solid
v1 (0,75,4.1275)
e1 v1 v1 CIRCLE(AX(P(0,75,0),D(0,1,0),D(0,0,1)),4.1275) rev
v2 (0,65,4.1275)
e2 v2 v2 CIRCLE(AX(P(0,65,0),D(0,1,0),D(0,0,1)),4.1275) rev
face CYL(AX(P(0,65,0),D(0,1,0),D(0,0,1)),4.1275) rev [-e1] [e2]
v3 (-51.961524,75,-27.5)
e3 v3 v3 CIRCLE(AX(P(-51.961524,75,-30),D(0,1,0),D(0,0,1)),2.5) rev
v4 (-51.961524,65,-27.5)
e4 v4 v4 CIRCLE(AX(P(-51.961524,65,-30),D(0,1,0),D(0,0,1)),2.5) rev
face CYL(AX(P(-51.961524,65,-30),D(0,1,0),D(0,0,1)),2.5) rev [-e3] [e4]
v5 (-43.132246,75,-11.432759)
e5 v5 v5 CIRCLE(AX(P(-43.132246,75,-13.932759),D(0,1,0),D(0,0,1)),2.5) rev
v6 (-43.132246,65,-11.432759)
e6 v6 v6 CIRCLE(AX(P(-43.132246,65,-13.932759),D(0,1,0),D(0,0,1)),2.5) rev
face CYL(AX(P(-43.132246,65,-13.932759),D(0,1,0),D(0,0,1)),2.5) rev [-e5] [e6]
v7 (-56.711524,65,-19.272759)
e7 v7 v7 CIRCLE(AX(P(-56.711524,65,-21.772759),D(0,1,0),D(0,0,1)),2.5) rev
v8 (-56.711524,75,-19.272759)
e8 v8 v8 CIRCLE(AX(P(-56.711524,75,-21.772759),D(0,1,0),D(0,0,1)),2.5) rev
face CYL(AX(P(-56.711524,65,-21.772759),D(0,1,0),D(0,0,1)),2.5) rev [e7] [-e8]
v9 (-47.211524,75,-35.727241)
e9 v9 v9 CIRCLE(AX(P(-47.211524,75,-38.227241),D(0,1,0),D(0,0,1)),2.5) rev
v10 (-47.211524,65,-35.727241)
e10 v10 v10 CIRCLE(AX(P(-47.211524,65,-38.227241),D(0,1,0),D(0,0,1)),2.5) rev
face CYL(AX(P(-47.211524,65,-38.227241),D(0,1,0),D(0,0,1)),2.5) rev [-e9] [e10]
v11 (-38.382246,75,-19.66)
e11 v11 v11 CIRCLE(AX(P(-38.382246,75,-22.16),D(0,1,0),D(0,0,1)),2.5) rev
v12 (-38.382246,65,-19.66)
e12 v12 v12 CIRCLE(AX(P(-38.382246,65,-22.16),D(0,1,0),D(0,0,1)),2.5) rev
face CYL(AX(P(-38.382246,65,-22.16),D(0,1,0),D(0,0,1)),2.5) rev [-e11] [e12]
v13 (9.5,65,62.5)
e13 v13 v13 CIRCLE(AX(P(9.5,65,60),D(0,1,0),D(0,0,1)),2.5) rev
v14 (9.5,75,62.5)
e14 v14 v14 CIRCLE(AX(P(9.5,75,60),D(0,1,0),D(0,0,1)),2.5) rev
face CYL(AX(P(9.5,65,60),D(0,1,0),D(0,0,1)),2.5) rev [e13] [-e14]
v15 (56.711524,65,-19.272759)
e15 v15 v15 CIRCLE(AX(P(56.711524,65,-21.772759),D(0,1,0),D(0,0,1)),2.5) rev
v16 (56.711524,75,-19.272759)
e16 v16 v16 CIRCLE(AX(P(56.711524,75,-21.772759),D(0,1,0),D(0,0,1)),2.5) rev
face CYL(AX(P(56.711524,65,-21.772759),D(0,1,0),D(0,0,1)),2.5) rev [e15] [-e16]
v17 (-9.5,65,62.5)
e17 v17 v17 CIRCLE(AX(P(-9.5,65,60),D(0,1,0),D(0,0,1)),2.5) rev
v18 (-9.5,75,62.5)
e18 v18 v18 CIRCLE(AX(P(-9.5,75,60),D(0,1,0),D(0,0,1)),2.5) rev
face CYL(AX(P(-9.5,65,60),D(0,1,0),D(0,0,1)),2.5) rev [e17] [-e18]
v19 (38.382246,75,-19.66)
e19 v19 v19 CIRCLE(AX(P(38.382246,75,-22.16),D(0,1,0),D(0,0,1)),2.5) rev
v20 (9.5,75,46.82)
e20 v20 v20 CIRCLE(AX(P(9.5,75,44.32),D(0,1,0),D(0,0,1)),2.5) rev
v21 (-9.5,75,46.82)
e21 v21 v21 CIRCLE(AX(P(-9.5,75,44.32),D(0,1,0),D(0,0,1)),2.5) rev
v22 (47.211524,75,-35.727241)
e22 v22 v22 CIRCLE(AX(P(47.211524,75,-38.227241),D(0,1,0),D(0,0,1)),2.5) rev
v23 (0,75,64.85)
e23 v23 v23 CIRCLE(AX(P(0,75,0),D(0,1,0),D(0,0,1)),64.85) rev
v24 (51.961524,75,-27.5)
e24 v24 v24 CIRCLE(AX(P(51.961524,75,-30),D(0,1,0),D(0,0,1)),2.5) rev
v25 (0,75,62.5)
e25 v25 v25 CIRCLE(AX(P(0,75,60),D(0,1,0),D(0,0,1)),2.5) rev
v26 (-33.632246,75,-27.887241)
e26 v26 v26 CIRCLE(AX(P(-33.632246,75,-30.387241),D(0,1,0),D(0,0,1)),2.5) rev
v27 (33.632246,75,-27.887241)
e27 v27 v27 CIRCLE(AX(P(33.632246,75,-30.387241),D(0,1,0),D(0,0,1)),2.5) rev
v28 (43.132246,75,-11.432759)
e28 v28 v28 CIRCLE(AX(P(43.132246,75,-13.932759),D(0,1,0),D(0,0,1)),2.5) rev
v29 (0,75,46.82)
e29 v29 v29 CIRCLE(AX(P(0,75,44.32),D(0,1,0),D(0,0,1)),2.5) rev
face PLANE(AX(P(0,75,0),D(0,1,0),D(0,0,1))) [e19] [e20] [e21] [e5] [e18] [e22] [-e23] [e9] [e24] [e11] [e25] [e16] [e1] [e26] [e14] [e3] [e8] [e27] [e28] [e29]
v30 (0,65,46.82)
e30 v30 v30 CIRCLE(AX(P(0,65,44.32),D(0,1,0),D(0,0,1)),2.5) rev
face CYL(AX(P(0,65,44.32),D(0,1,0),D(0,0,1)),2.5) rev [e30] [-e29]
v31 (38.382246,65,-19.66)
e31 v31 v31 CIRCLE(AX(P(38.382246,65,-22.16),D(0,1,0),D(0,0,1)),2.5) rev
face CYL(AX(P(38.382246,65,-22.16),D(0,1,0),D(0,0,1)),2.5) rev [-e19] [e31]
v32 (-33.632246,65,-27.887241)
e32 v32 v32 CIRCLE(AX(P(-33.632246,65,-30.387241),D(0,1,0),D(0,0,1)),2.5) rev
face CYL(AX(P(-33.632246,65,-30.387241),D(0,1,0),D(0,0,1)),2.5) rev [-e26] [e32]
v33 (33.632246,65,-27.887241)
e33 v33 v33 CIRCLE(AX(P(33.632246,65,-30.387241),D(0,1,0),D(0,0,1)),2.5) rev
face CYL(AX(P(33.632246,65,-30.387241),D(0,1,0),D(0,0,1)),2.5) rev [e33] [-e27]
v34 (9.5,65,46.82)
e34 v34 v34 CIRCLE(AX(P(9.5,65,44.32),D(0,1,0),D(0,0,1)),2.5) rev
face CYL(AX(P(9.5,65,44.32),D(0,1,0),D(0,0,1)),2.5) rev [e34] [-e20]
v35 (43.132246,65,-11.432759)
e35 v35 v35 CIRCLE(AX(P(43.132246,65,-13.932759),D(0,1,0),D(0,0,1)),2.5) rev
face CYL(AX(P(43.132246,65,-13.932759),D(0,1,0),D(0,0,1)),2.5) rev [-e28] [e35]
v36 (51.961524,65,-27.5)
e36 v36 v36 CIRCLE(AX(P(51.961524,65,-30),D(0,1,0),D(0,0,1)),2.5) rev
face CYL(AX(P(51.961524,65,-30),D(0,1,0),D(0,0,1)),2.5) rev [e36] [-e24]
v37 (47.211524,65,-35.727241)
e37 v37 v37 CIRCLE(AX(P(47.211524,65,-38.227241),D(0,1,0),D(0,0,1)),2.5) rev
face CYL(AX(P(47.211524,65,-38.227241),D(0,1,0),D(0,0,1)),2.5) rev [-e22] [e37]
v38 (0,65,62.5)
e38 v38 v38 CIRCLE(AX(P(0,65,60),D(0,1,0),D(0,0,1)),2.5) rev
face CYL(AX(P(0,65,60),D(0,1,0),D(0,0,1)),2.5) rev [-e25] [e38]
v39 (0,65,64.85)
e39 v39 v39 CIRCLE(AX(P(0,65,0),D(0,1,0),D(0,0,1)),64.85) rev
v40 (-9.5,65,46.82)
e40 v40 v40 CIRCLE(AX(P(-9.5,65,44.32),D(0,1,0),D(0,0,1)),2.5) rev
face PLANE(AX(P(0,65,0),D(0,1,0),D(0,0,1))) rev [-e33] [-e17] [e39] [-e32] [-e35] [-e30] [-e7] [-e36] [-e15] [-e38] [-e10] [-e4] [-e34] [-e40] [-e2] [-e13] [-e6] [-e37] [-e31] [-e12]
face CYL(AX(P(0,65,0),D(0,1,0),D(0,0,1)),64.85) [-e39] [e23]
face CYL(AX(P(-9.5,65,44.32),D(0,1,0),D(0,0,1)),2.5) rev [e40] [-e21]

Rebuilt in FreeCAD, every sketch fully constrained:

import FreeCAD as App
import Part
import Sketcher
from FreeCAD import Vector
Q = App.Units.Quantity

doc = App.newDocument("Part")
params = doc.addObject("Spreadsheet::Sheet", "Params")
for row, (alias, value) in enumerate([
    ("sketch1_diameter", "5 mm"),
    ("sketch1_diameter2", "129.7 mm"),
    ("pad1_length", "10 mm"),
], start=1):
    params.set(f"A{row}", alias)
    params.set(f"B{row}", "=" + value)
    params.setAlias(f"B{row}", alias)

body = doc.addObject("PartDesign::Body", "Body")

# Sketch on XZ plane
sketch1 = body.newObject("Sketcher::SketchObject", "Sketch")
sketch1.AttachmentSupport = (doc.getObject("XZ_Plane"), [""])
sketch1.MapMode = "FlatFace"
sketch1.AttachmentOffset = App.Placement(Vector(0, 0, -75), App.Rotation())
sketch1.addGeometry(Part.Circle(Vector(0, 0, 0), Vector(0, 0, 1), 64.85), False)
sketch1.addGeometry(Part.Circle(Vector(51.961524, -30, 0), Vector(0, 0, 1), 2.5), False)
sketch1.addGeometry(Part.Circle(Vector(47.211524, -38.227241, 0), Vector(0, 0, 1), 2.5), False)
sketch1.addGeometry(Part.Circle(Vector(56.711524, -21.772759, 0), Vector(0, 0, 1), 2.5), False)
sketch1.addGeometry(Part.Circle(Vector(33.632246, -30.387241, 0), Vector(0, 0, 1), 2.5), False)
sketch1.addGeometry(Part.Circle(Vector(38.382246, -22.16, 0), Vector(0, 0, 1), 2.5), False)
sketch1.addGeometry(Part.Circle(Vector(43.132246, -13.932759, 0), Vector(0, 0, 1), 2.5), False)
sketch1.addGeometry(Part.Circle(Vector(9.5, 44.32, 0), Vector(0, 0, 1), 2.5), False)
sketch1.addGeometry(Part.Circle(Vector(9.5, 60, 0), Vector(0, 0, 1), 2.5), False)
sketch1.addGeometry(Part.Circle(Vector(0, 0, 0), Vector(0, 0, 1), 4.1275), False)
sketch1.addGeometry(Part.Circle(Vector(-33.632246, -30.387241, 0), Vector(0, 0, 1), 2.5), False)
sketch1.addGeometry(Part.Circle(Vector(-38.382246, -22.16, 0), Vector(0, 0, 1), 2.5), False)
sketch1.addGeometry(Part.Circle(Vector(-47.211524, -38.227241, 0), Vector(0, 0, 1), 2.5), False)
sketch1.addGeometry(Part.Circle(Vector(-51.961524, -30, 0), Vector(0, 0, 1), 2.5), False)
sketch1.addGeometry(Part.Circle(Vector(-56.711524, -21.772759, 0), Vector(0, 0, 1), 2.5), False)
sketch1.addGeometry(Part.Circle(Vector(-43.132246, -13.932759, 0), Vector(0, 0, 1), 2.5), False)
sketch1.addGeometry(Part.Circle(Vector(0, 44.32, 0), Vector(0, 0, 1), 2.5), False)
sketch1.addGeometry(Part.Circle(Vector(-9.5, 44.32, 0), Vector(0, 0, 1), 2.5), False)
sketch1.addGeometry(Part.Circle(Vector(0, 60, 0), Vector(0, 0, 1), 2.5), False)
sketch1.addGeometry(Part.Circle(Vector(-9.5, 60, 0), Vector(0, 0, 1), 2.5), False)
sketch1.addConstraint(Sketcher.Constraint("Coincident", 0, 3, -1, 1))
sketch1.addConstraint(Sketcher.Constraint("Coincident", 9, 3, -1, 1))
sketch1.addConstraint(Sketcher.Constraint("Equal", 1, 2))
sketch1.addConstraint(Sketcher.Constraint("Equal", 2, 3))
sketch1.addConstraint(Sketcher.Constraint("Equal", 3, 4))
sketch1.addConstraint(Sketcher.Constraint("Equal", 4, 5))
sketch1.addConstraint(Sketcher.Constraint("Equal", 5, 6))
sketch1.addConstraint(Sketcher.Constraint("Equal", 6, 7))
sketch1.addConstraint(Sketcher.Constraint("Equal", 7, 8))
sketch1.addConstraint(Sketcher.Constraint("Equal", 8, 10))
sketch1.addConstraint(Sketcher.Constraint("Equal", 10, 11))
sketch1.addConstraint(Sketcher.Constraint("Equal", 11, 12))
sketch1.addConstraint(Sketcher.Constraint("Equal", 12, 13))
sketch1.addConstraint(Sketcher.Constraint("Equal", 13, 14))
sketch1.addConstraint(Sketcher.Constraint("Equal", 14, 15))
sketch1.addConstraint(Sketcher.Constraint("Equal", 15, 16))
sketch1.addConstraint(Sketcher.Constraint("Equal", 16, 17))
sketch1.addConstraint(Sketcher.Constraint("Equal", 17, 18))
sketch1.addConstraint(Sketcher.Constraint("Equal", 18, 19))
sketch1.addConstraint(Sketcher.Constraint("Symmetric", 4, 3, 10, 3, -2))
sketch1.addConstraint(Sketcher.Constraint("Symmetric", 5, 3, 11, 3, -2))
sketch1.addConstraint(Sketcher.Constraint("Symmetric", 2, 3, 12, 3, -2))
sketch1.addConstraint(Sketcher.Constraint("Symmetric", 1, 3, 13, 3, -2))
sketch1.addConstraint(Sketcher.Constraint("Symmetric", 3, 3, 14, 3, -2))
sketch1.addConstraint(Sketcher.Constraint("Symmetric", 6, 3, 15, 3, -2))
sketch1.addConstraint(Sketcher.Constraint("Symmetric", 7, 3, 17, 3, -2))
sketch1.addConstraint(Sketcher.Constraint("Symmetric", 8, 3, 19, 3, -2))
sketch1.addConstraint(Sketcher.Constraint("PointOnObject", 16, 3, -2))
sketch1.addConstraint(Sketcher.Constraint("PointOnObject", 18, 3, -2))
sketch1.addConstraint(Sketcher.Constraint("Horizontal", 7, 3, 16, 3))
sketch1.addConstraint(Sketcher.Constraint("Horizontal", 8, 3, 18, 3))
sketch1.addConstraint(Sketcher.Constraint("Vertical", 7, 3, 8, 3))
sketch1.addConstraint(Sketcher.Constraint("Diameter", 1, Q("5 mm")))
sketch1.addConstraint(Sketcher.Constraint("Diameter", 0, Q("129.7 mm")))
sketch1.addConstraint(Sketcher.Constraint("Diameter", 9, Q("8.255 mm")))
sketch1.addConstraint(Sketcher.Constraint("DistanceY", 1, 3, -1, 1, Q("30 mm")))
sketch1.addConstraint(Sketcher.Constraint("DistanceY", -1, 1, 8, 3, Q("60 mm")))
sketch1.addConstraint(Sketcher.Constraint("DistanceX", 17, 3, 7, 3, Q("19 mm")))
sketch1.addConstraint(Sketcher.Constraint("DistanceX", 2, 3, 3, 3, Q("9.5 mm")))
sketch1.addConstraint(Sketcher.Constraint("DistanceX", 4, 3, 6, 3, Q("9.5 mm")))
sketch1.addConstraint(Sketcher.Constraint("DistanceY", 5, 3, -1, 1, Q("22.16 mm")))
sketch1.addConstraint(Sketcher.Constraint("DistanceY", -1, 1, 7, 3, Q("44.32 mm")))
sketch1.addConstraint(Sketcher.Constraint("DistanceX", 2, 3, 1, 3, Q("4.75 mm")))
sketch1.addConstraint(Sketcher.Constraint("DistanceY", 2, 3, 4, 3, Q("7.84 mm")))
sketch1.addConstraint(Sketcher.Constraint("DistanceX", 4, 3, 5, 3, Q("4.75 mm")))
sketch1.addConstraint(Sketcher.Constraint("DistanceY", 3, 3, 6, 3, Q("7.84 mm")))
sketch1.addConstraint(Sketcher.Constraint("DistanceY", 2, 3, -1, 1, Q("38.227241 mm")))
sketch1.addConstraint(Sketcher.Constraint("DistanceY", 3, 3, -1, 1, Q("21.772759 mm")))
sketch1.addConstraint(Sketcher.Constraint("DistanceX", 4, 3, 2, 3, Q("13.579278 mm")))
sketch1.addConstraint(Sketcher.Constraint("DistanceX", 10, 3, 4, 3, Q("67.264492 mm")))
sketch1.setExpression("Constraints[32]", "Params.sketch1_diameter")
sketch1.setExpression("Constraints[33]", "Params.sketch1_diameter2")
pad1 = body.newObject("PartDesign::Pad", "Pad")
pad1.Profile = sketch1
pad1.setExpression("Length", "Params.pad1_length")

doc.recompute()
